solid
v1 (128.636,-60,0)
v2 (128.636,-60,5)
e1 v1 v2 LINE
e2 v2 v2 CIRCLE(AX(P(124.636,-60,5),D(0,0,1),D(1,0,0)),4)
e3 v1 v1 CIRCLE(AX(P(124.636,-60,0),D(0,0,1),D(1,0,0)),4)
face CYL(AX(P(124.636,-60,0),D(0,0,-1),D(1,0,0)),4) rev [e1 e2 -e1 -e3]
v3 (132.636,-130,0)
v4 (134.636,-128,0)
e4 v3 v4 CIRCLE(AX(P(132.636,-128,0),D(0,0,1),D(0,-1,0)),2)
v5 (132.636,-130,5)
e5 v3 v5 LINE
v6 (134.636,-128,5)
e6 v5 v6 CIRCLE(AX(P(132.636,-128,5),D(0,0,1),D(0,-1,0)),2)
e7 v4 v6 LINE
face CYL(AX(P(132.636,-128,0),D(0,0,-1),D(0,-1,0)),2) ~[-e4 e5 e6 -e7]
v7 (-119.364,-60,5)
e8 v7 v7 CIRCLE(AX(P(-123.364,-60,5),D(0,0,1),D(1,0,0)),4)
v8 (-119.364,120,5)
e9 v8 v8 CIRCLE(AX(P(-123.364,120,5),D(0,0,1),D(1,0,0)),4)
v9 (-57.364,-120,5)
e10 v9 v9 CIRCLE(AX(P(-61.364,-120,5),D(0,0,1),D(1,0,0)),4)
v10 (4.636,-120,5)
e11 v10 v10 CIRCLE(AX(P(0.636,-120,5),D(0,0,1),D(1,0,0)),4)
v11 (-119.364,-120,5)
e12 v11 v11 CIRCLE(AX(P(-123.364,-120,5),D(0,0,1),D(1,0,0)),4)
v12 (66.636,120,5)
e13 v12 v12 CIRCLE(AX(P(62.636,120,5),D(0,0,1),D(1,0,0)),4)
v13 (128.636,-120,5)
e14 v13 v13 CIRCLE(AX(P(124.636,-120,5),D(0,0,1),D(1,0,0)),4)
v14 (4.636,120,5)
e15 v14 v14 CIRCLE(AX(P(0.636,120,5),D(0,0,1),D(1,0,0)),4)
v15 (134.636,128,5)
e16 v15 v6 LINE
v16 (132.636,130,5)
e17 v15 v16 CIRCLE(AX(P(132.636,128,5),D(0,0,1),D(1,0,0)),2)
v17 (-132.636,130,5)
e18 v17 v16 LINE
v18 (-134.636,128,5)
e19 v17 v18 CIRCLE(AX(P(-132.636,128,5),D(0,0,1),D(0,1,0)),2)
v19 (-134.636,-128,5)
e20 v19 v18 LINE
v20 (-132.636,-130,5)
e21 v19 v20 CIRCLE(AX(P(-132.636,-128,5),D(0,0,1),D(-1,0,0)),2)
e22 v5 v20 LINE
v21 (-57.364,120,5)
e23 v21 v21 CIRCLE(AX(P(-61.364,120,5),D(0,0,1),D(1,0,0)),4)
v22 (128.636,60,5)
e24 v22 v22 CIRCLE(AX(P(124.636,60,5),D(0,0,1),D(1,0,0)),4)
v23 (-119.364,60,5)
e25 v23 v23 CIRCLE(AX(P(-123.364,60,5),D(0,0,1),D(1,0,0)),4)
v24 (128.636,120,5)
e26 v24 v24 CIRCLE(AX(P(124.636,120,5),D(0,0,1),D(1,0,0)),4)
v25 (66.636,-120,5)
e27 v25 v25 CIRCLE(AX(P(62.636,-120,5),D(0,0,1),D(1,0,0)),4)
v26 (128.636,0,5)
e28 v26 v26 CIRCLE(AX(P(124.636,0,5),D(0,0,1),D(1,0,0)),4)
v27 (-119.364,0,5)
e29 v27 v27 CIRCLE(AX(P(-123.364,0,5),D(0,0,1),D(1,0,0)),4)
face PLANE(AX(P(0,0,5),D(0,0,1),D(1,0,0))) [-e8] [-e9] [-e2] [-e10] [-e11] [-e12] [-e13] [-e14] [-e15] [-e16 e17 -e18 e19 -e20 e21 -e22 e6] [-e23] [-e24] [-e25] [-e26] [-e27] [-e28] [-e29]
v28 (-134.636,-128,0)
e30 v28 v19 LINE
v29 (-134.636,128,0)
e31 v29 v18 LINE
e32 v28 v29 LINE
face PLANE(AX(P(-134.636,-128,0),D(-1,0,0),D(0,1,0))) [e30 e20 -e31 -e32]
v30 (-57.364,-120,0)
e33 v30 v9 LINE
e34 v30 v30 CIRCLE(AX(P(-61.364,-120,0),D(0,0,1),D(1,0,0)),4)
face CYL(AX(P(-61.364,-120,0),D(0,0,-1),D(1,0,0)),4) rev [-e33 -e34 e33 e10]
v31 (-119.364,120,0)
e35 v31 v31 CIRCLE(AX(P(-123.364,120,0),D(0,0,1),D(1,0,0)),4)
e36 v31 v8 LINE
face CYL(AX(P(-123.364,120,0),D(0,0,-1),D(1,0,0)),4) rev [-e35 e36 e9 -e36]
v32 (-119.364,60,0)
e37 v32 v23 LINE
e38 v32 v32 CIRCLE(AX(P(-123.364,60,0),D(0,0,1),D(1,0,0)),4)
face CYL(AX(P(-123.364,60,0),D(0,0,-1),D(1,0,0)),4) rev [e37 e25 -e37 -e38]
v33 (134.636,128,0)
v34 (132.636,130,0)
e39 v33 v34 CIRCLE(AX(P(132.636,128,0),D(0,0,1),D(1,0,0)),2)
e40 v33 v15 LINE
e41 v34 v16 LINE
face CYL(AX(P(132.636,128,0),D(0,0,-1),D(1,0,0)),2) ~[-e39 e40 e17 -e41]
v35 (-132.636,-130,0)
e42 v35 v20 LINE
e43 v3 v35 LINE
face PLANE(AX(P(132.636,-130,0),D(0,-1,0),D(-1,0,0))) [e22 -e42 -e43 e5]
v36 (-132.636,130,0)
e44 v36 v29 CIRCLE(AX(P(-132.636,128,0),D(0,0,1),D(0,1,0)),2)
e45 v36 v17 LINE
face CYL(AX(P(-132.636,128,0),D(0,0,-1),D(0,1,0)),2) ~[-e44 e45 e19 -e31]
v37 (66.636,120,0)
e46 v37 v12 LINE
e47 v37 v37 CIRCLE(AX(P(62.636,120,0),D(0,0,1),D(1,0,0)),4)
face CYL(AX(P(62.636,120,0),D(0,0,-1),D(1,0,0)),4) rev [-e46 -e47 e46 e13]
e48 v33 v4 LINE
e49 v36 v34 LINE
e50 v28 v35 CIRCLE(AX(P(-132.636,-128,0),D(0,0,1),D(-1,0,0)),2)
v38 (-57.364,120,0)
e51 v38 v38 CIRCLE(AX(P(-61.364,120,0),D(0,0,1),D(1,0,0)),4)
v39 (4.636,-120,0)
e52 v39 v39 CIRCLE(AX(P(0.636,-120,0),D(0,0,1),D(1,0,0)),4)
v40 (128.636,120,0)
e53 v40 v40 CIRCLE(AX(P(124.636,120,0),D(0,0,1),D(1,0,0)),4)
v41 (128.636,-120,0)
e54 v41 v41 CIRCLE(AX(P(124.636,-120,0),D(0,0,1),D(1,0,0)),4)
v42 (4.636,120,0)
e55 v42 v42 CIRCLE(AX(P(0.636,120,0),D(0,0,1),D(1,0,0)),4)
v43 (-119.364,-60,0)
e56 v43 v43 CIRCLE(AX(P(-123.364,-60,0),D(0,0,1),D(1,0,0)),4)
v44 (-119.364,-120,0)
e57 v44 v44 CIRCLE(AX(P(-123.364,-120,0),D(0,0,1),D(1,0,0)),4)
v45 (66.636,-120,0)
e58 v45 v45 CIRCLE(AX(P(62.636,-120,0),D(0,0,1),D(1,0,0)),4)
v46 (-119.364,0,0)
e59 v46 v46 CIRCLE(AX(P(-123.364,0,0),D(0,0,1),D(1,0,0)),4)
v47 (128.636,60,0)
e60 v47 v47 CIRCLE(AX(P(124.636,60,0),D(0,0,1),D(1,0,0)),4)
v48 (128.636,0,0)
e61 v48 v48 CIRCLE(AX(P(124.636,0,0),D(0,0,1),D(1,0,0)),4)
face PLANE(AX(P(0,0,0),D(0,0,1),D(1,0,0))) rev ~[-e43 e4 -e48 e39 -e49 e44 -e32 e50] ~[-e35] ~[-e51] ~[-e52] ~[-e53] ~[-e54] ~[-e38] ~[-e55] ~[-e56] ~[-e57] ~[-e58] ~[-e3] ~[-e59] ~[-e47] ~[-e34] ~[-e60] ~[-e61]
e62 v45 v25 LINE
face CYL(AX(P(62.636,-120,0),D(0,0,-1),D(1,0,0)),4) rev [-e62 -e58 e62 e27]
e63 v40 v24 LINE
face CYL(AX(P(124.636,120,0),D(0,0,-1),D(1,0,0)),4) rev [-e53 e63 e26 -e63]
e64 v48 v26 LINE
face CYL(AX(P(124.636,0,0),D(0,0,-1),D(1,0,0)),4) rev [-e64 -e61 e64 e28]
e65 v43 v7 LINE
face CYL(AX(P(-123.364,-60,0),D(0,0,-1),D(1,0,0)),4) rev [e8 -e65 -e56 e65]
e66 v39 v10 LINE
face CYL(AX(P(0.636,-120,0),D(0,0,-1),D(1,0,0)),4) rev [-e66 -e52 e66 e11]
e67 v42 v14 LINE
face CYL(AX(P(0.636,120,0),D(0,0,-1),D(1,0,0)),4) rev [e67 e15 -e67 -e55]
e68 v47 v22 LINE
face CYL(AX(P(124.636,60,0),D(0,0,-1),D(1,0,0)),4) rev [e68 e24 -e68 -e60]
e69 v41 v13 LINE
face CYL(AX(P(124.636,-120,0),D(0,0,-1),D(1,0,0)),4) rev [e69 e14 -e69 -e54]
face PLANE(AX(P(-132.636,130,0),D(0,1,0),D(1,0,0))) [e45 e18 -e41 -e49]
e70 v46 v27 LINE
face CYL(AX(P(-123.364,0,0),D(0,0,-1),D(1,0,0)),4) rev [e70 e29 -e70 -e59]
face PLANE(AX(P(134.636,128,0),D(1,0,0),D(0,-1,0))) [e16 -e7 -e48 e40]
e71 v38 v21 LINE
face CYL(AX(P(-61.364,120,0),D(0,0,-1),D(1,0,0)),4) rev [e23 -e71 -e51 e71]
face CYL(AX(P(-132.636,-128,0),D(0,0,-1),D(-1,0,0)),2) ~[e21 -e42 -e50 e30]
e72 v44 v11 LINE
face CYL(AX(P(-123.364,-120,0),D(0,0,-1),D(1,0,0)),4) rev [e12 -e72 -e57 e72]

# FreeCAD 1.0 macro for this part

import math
import FreeCAD as App
import Part
import Sketcher
from FreeCAD import Vector

doc = App.newDocument("Part")
body = doc.addObject("PartDesign::Body", "Body")

# Sketch on XY plane
sketch1 = doc.addObject("Sketcher::SketchObject", "Sketch")
body.addObject(sketch1)
sketch1.AttachmentSupport = (doc.XY_Plane, [""])
sketch1.MapMode = "FlatFace"
sketch1.addGeometry(Part.LineSegment(Vector(-132.636, -130, 0), Vector(132.636, -130, 0)), False)
sketch1.addGeometry(Part.ArcOfCircle(Part.Circle(Vector(132.636, -128, 0), Vector(0, 0, 1), 2), math.radians(-90), math.radians(0)), False)
sketch1.addGeometry(Part.LineSegment(Vector(134.636, -128, 0), Vector(134.636, 128, 0)), False)
sketch1.addGeometry(Part.ArcOfCircle(Part.Circle(Vector(132.636, 128, 0), Vector(0, 0, 1), 2), math.radians(0), math.radians(90)), False)
sketch1.addGeometry(Part.LineSegment(Vector(132.636, 130, 0), Vector(-132.636, 130, 0)), False)
sketch1.addGeometry(Part.ArcOfCircle(Part.Circle(Vector(-132.636, 128, 0), Vector(0, 0, 1), 2), math.radians(90), math.radians(180)), False)
sketch1.addGeometry(Part.LineSegment(Vector(-134.636, 128, 0), Vector(-134.636, -128, 0)), False)
sketch1.addGeometry(Part.ArcOfCircle(Part.Circle(Vector(-132.636, -128, 0), Vector(0, 0, 1), 2), math.radians(180), math.radians(270)), False)
sketch1.addGeometry(Part.Circle(Vector(-123.364, -120, 0), Vector(0, 0, 1), 4), False)
sketch1.addGeometry(Part.Circle(Vector(-61.364, -120, 0), Vector(0, 0, 1), 4), False)
sketch1.addGeometry(Part.Circle(Vector(-123.364, -60, 0), Vector(0, 0, 1), 4), False)
sketch1.addGeometry(Part.Circle(Vector(0.636, -120, 0), Vector(0, 0, 1), 4), False)
sketch1.addGeometry(Part.Circle(Vector(62.636, -120, 0), Vector(0, 0, 1), 4), False)
sketch1.addGeometry(Part.Circle(Vector(124.636, -120, 0), Vector(0, 0, 1), 4), False)
sketch1.addGeometry(Part.Circle(Vector(124.636, -60, 0), Vector(0, 0, 1), 4), False)
sketch1.addGeometry(Part.Circle(Vector(-123.364, 0, 0), Vector(0, 0, 1), 4), False)
sketch1.addGeometry(Part.Circle(Vector(-123.364, 60, 0), Vector(0, 0, 1), 4), False)
sketch1.addGeometry(Part.Circle(Vector(124.636, 60, 0), Vector(0, 0, 1), 4), False)
sketch1.addGeometry(Part.Circle(Vector(0.636, 120, 0), Vector(0, 0, 1), 4), False)
sketch1.addGeometry(Part.Circle(Vector(62.636, 120, 0), Vector(0, 0, 1), 4), False)
sketch1.addGeometry(Part.Circle(Vector(124.636, 120, 0), Vector(0, 0, 1), 4), False)
sketch1.addGeometry(Part.Circle(Vector(-123.364, 120, 0), Vector(0, 0, 1), 4), False)
sketch1.addGeometry(Part.Circle(Vector(-61.364, 120, 0), Vector(0, 0, 1), 4), False)
sketch1.addGeometry(Part.Circle(Vector(124.636, 0, 0), Vector(0, 0, 1), 4), False)
sketch1.addConstraint(Sketcher.Constraint("Tangent", 0, 2, 1, 1))
sketch1.addConstraint(Sketcher.Constraint("Tangent", 1, 2, 2, 1))
sketch1.addConstraint(Sketcher.Constraint("Tangent", 2, 2, 3, 1))
sketch1.addConstraint(Sketcher.Constraint("Tangent", 3, 2, 4, 1))
sketch1.addConstraint(Sketcher.Constraint("Tangent", 4, 2, 5, 1))
sketch1.addConstraint(Sketcher.Constraint("Tangent", 5, 2, 6, 1))
sketch1.addConstraint(Sketcher.Constraint("Tangent", 6, 2, 7, 1))
sketch1.addConstraint(Sketcher.Constraint("Tangent", 7, 2, 0, 1))
sketch1.addConstraint(Sketcher.Constraint("Horizontal", 0))
sketch1.addConstraint(Sketcher.Constraint("Vertical", 2))
sketch1.addConstraint(Sketcher.Constraint("Horizontal", 4))
sketch1.addConstraint(Sketcher.Constraint("Vertical", 6))
sketch1.addConstraint(Sketcher.Constraint("Equal", 1, 3))
sketch1.addConstraint(Sketcher.Constraint("Equal", 3, 5))
sketch1.addConstraint(Sketcher.Constraint("Equal", 5, 7))
sketch1.addConstraint(Sketcher.Constraint("Equal", 8, 9))
sketch1.addConstraint(Sketcher.Constraint("Equal", 9, 10))
sketch1.addConstraint(Sketcher.Constraint("Equal", 10, 11))
sketch1.addConstraint(Sketcher.Constraint("Equal", 11, 12))
sketch1.addConstraint(Sketcher.Constraint("Equal", 12, 13))
sketch1.addConstraint(Sketcher.Constraint("Equal", 13, 14))
sketch1.addConstraint(Sketcher.Constraint("Equal", 14, 15))
sketch1.addConstraint(Sketcher.Constraint("Equal", 15, 16))
sketch1.addConstraint(Sketcher.Constraint("Equal", 16, 17))
sketch1.addConstraint(Sketcher.Constraint("Equal", 17, 18))
sketch1.addConstraint(Sketcher.Constraint("Equal", 18, 19))
sketch1.addConstraint(Sketcher.Constraint("Equal", 19, 20))
sketch1.addConstraint(Sketcher.Constraint("Equal", 20, 21))
sketch1.addConstraint(Sketcher.Constraint("Equal", 21, 22))
sketch1.addConstraint(Sketcher.Constraint("Equal", 22, 23))
sketch1.addConstraint(Sketcher.Constraint("Symmetric", 1, 3, 5, 3, -1, 1))
sketch1.addConstraint(Sketcher.Constraint("Symmetric", 10, 3, 16, 3, -1))
sketch1.addConstraint(Sketcher.Constraint("Symmetric", 14, 3, 17, 3, -1))
sketch1.addConstraint(Sketcher.Constraint("Symmetric", 11, 3, 18, 3, -1))
sketch1.addConstraint(Sketcher.Constraint("Symmetric", 12, 3, 19, 3, -1))
sketch1.addConstraint(Sketcher.Constraint("Symmetric", 13, 3, 20, 3, -1))
sketch1.addConstraint(Sketcher.Constraint("Symmetric", 8, 3, 21, 3, -1))
sketch1.addConstraint(Sketcher.Constraint("Symmetric", 9, 3, 22, 3, -1))
sketch1.addConstraint(Sketcher.Constraint("PointOnObject", 15, 3, -1))
sketch1.addConstraint(Sketcher.Constraint("PointOnObject", 23, 3, -1))
sketch1.addConstraint(Sketcher.Constraint("Horizontal", 8, 3, 9, 3))
sketch1.addConstraint(Sketcher.Constraint("Horizontal", 9, 3, 11, 3))
sketch1.addConstraint(Sketcher.Constraint("Horizontal", 11, 3, 12, 3))
sketch1.addConstraint(Sketcher.Constraint("Horizontal", 12, 3, 13, 3))
sketch1.addConstraint(Sketcher.Constraint("Horizontal", 10, 3, 14, 3))
sketch1.addConstraint(Sketcher.Constraint("Vertical", 8, 3, 10, 3))
sketch1.addConstraint(Sketcher.Constraint("Vertical", 13, 3, 14, 3))
sketch1.addConstraint(Sketcher.Constraint("Vertical", 10, 3, 15, 3))
sketch1.addConstraint(Sketcher.Constraint("Vertical", 20, 3, 23, 3))
sketch1.addConstraint(Sketcher.Constraint("Diameter", 8, 8.0))
sketch1.addConstraint(Sketcher.Constraint("Radius", 1, 2.0))
sketch1.addConstraint(Sketcher.Constraint("DistanceY", 2, 1, 2, 2, 256.0))
sketch1.addConstraint(Sketcher.Constraint("DistanceY", 8, 3, -1, 1, 120.0))
sketch1.addConstraint(Sketcher.Constraint("DistanceY", 10, 3, -1, 1, 60.0))
sketch1.addConstraint(Sketcher.Constraint("DistanceX", 8, 3, 1, 3, 256.0))
sketch1.addConstraint(Sketcher.Constraint("DistanceX", 8, 3, 9, 3, 62.0))
sketch1.addConstraint(Sketcher.Constraint("DistanceX", 9, 3, 11, 3, 62.0))
sketch1.addConstraint(Sketcher.Constraint("DistanceX", 11, 3, 12, 3, 62.0))
sketch1.addConstraint(Sketcher.Constraint("DistanceX", 13, 3, 1, 3, 8.0))
sketch1.addConstraint(Sketcher.Constraint("DistanceX", 0, 1, 0, 2, 265.272))
pad1 = doc.addObject("PartDesign::Pad", "Pad")
body.addObject(pad1)
pad1.Profile = sketch1
pad1.Length = 5

doc.recompute()
